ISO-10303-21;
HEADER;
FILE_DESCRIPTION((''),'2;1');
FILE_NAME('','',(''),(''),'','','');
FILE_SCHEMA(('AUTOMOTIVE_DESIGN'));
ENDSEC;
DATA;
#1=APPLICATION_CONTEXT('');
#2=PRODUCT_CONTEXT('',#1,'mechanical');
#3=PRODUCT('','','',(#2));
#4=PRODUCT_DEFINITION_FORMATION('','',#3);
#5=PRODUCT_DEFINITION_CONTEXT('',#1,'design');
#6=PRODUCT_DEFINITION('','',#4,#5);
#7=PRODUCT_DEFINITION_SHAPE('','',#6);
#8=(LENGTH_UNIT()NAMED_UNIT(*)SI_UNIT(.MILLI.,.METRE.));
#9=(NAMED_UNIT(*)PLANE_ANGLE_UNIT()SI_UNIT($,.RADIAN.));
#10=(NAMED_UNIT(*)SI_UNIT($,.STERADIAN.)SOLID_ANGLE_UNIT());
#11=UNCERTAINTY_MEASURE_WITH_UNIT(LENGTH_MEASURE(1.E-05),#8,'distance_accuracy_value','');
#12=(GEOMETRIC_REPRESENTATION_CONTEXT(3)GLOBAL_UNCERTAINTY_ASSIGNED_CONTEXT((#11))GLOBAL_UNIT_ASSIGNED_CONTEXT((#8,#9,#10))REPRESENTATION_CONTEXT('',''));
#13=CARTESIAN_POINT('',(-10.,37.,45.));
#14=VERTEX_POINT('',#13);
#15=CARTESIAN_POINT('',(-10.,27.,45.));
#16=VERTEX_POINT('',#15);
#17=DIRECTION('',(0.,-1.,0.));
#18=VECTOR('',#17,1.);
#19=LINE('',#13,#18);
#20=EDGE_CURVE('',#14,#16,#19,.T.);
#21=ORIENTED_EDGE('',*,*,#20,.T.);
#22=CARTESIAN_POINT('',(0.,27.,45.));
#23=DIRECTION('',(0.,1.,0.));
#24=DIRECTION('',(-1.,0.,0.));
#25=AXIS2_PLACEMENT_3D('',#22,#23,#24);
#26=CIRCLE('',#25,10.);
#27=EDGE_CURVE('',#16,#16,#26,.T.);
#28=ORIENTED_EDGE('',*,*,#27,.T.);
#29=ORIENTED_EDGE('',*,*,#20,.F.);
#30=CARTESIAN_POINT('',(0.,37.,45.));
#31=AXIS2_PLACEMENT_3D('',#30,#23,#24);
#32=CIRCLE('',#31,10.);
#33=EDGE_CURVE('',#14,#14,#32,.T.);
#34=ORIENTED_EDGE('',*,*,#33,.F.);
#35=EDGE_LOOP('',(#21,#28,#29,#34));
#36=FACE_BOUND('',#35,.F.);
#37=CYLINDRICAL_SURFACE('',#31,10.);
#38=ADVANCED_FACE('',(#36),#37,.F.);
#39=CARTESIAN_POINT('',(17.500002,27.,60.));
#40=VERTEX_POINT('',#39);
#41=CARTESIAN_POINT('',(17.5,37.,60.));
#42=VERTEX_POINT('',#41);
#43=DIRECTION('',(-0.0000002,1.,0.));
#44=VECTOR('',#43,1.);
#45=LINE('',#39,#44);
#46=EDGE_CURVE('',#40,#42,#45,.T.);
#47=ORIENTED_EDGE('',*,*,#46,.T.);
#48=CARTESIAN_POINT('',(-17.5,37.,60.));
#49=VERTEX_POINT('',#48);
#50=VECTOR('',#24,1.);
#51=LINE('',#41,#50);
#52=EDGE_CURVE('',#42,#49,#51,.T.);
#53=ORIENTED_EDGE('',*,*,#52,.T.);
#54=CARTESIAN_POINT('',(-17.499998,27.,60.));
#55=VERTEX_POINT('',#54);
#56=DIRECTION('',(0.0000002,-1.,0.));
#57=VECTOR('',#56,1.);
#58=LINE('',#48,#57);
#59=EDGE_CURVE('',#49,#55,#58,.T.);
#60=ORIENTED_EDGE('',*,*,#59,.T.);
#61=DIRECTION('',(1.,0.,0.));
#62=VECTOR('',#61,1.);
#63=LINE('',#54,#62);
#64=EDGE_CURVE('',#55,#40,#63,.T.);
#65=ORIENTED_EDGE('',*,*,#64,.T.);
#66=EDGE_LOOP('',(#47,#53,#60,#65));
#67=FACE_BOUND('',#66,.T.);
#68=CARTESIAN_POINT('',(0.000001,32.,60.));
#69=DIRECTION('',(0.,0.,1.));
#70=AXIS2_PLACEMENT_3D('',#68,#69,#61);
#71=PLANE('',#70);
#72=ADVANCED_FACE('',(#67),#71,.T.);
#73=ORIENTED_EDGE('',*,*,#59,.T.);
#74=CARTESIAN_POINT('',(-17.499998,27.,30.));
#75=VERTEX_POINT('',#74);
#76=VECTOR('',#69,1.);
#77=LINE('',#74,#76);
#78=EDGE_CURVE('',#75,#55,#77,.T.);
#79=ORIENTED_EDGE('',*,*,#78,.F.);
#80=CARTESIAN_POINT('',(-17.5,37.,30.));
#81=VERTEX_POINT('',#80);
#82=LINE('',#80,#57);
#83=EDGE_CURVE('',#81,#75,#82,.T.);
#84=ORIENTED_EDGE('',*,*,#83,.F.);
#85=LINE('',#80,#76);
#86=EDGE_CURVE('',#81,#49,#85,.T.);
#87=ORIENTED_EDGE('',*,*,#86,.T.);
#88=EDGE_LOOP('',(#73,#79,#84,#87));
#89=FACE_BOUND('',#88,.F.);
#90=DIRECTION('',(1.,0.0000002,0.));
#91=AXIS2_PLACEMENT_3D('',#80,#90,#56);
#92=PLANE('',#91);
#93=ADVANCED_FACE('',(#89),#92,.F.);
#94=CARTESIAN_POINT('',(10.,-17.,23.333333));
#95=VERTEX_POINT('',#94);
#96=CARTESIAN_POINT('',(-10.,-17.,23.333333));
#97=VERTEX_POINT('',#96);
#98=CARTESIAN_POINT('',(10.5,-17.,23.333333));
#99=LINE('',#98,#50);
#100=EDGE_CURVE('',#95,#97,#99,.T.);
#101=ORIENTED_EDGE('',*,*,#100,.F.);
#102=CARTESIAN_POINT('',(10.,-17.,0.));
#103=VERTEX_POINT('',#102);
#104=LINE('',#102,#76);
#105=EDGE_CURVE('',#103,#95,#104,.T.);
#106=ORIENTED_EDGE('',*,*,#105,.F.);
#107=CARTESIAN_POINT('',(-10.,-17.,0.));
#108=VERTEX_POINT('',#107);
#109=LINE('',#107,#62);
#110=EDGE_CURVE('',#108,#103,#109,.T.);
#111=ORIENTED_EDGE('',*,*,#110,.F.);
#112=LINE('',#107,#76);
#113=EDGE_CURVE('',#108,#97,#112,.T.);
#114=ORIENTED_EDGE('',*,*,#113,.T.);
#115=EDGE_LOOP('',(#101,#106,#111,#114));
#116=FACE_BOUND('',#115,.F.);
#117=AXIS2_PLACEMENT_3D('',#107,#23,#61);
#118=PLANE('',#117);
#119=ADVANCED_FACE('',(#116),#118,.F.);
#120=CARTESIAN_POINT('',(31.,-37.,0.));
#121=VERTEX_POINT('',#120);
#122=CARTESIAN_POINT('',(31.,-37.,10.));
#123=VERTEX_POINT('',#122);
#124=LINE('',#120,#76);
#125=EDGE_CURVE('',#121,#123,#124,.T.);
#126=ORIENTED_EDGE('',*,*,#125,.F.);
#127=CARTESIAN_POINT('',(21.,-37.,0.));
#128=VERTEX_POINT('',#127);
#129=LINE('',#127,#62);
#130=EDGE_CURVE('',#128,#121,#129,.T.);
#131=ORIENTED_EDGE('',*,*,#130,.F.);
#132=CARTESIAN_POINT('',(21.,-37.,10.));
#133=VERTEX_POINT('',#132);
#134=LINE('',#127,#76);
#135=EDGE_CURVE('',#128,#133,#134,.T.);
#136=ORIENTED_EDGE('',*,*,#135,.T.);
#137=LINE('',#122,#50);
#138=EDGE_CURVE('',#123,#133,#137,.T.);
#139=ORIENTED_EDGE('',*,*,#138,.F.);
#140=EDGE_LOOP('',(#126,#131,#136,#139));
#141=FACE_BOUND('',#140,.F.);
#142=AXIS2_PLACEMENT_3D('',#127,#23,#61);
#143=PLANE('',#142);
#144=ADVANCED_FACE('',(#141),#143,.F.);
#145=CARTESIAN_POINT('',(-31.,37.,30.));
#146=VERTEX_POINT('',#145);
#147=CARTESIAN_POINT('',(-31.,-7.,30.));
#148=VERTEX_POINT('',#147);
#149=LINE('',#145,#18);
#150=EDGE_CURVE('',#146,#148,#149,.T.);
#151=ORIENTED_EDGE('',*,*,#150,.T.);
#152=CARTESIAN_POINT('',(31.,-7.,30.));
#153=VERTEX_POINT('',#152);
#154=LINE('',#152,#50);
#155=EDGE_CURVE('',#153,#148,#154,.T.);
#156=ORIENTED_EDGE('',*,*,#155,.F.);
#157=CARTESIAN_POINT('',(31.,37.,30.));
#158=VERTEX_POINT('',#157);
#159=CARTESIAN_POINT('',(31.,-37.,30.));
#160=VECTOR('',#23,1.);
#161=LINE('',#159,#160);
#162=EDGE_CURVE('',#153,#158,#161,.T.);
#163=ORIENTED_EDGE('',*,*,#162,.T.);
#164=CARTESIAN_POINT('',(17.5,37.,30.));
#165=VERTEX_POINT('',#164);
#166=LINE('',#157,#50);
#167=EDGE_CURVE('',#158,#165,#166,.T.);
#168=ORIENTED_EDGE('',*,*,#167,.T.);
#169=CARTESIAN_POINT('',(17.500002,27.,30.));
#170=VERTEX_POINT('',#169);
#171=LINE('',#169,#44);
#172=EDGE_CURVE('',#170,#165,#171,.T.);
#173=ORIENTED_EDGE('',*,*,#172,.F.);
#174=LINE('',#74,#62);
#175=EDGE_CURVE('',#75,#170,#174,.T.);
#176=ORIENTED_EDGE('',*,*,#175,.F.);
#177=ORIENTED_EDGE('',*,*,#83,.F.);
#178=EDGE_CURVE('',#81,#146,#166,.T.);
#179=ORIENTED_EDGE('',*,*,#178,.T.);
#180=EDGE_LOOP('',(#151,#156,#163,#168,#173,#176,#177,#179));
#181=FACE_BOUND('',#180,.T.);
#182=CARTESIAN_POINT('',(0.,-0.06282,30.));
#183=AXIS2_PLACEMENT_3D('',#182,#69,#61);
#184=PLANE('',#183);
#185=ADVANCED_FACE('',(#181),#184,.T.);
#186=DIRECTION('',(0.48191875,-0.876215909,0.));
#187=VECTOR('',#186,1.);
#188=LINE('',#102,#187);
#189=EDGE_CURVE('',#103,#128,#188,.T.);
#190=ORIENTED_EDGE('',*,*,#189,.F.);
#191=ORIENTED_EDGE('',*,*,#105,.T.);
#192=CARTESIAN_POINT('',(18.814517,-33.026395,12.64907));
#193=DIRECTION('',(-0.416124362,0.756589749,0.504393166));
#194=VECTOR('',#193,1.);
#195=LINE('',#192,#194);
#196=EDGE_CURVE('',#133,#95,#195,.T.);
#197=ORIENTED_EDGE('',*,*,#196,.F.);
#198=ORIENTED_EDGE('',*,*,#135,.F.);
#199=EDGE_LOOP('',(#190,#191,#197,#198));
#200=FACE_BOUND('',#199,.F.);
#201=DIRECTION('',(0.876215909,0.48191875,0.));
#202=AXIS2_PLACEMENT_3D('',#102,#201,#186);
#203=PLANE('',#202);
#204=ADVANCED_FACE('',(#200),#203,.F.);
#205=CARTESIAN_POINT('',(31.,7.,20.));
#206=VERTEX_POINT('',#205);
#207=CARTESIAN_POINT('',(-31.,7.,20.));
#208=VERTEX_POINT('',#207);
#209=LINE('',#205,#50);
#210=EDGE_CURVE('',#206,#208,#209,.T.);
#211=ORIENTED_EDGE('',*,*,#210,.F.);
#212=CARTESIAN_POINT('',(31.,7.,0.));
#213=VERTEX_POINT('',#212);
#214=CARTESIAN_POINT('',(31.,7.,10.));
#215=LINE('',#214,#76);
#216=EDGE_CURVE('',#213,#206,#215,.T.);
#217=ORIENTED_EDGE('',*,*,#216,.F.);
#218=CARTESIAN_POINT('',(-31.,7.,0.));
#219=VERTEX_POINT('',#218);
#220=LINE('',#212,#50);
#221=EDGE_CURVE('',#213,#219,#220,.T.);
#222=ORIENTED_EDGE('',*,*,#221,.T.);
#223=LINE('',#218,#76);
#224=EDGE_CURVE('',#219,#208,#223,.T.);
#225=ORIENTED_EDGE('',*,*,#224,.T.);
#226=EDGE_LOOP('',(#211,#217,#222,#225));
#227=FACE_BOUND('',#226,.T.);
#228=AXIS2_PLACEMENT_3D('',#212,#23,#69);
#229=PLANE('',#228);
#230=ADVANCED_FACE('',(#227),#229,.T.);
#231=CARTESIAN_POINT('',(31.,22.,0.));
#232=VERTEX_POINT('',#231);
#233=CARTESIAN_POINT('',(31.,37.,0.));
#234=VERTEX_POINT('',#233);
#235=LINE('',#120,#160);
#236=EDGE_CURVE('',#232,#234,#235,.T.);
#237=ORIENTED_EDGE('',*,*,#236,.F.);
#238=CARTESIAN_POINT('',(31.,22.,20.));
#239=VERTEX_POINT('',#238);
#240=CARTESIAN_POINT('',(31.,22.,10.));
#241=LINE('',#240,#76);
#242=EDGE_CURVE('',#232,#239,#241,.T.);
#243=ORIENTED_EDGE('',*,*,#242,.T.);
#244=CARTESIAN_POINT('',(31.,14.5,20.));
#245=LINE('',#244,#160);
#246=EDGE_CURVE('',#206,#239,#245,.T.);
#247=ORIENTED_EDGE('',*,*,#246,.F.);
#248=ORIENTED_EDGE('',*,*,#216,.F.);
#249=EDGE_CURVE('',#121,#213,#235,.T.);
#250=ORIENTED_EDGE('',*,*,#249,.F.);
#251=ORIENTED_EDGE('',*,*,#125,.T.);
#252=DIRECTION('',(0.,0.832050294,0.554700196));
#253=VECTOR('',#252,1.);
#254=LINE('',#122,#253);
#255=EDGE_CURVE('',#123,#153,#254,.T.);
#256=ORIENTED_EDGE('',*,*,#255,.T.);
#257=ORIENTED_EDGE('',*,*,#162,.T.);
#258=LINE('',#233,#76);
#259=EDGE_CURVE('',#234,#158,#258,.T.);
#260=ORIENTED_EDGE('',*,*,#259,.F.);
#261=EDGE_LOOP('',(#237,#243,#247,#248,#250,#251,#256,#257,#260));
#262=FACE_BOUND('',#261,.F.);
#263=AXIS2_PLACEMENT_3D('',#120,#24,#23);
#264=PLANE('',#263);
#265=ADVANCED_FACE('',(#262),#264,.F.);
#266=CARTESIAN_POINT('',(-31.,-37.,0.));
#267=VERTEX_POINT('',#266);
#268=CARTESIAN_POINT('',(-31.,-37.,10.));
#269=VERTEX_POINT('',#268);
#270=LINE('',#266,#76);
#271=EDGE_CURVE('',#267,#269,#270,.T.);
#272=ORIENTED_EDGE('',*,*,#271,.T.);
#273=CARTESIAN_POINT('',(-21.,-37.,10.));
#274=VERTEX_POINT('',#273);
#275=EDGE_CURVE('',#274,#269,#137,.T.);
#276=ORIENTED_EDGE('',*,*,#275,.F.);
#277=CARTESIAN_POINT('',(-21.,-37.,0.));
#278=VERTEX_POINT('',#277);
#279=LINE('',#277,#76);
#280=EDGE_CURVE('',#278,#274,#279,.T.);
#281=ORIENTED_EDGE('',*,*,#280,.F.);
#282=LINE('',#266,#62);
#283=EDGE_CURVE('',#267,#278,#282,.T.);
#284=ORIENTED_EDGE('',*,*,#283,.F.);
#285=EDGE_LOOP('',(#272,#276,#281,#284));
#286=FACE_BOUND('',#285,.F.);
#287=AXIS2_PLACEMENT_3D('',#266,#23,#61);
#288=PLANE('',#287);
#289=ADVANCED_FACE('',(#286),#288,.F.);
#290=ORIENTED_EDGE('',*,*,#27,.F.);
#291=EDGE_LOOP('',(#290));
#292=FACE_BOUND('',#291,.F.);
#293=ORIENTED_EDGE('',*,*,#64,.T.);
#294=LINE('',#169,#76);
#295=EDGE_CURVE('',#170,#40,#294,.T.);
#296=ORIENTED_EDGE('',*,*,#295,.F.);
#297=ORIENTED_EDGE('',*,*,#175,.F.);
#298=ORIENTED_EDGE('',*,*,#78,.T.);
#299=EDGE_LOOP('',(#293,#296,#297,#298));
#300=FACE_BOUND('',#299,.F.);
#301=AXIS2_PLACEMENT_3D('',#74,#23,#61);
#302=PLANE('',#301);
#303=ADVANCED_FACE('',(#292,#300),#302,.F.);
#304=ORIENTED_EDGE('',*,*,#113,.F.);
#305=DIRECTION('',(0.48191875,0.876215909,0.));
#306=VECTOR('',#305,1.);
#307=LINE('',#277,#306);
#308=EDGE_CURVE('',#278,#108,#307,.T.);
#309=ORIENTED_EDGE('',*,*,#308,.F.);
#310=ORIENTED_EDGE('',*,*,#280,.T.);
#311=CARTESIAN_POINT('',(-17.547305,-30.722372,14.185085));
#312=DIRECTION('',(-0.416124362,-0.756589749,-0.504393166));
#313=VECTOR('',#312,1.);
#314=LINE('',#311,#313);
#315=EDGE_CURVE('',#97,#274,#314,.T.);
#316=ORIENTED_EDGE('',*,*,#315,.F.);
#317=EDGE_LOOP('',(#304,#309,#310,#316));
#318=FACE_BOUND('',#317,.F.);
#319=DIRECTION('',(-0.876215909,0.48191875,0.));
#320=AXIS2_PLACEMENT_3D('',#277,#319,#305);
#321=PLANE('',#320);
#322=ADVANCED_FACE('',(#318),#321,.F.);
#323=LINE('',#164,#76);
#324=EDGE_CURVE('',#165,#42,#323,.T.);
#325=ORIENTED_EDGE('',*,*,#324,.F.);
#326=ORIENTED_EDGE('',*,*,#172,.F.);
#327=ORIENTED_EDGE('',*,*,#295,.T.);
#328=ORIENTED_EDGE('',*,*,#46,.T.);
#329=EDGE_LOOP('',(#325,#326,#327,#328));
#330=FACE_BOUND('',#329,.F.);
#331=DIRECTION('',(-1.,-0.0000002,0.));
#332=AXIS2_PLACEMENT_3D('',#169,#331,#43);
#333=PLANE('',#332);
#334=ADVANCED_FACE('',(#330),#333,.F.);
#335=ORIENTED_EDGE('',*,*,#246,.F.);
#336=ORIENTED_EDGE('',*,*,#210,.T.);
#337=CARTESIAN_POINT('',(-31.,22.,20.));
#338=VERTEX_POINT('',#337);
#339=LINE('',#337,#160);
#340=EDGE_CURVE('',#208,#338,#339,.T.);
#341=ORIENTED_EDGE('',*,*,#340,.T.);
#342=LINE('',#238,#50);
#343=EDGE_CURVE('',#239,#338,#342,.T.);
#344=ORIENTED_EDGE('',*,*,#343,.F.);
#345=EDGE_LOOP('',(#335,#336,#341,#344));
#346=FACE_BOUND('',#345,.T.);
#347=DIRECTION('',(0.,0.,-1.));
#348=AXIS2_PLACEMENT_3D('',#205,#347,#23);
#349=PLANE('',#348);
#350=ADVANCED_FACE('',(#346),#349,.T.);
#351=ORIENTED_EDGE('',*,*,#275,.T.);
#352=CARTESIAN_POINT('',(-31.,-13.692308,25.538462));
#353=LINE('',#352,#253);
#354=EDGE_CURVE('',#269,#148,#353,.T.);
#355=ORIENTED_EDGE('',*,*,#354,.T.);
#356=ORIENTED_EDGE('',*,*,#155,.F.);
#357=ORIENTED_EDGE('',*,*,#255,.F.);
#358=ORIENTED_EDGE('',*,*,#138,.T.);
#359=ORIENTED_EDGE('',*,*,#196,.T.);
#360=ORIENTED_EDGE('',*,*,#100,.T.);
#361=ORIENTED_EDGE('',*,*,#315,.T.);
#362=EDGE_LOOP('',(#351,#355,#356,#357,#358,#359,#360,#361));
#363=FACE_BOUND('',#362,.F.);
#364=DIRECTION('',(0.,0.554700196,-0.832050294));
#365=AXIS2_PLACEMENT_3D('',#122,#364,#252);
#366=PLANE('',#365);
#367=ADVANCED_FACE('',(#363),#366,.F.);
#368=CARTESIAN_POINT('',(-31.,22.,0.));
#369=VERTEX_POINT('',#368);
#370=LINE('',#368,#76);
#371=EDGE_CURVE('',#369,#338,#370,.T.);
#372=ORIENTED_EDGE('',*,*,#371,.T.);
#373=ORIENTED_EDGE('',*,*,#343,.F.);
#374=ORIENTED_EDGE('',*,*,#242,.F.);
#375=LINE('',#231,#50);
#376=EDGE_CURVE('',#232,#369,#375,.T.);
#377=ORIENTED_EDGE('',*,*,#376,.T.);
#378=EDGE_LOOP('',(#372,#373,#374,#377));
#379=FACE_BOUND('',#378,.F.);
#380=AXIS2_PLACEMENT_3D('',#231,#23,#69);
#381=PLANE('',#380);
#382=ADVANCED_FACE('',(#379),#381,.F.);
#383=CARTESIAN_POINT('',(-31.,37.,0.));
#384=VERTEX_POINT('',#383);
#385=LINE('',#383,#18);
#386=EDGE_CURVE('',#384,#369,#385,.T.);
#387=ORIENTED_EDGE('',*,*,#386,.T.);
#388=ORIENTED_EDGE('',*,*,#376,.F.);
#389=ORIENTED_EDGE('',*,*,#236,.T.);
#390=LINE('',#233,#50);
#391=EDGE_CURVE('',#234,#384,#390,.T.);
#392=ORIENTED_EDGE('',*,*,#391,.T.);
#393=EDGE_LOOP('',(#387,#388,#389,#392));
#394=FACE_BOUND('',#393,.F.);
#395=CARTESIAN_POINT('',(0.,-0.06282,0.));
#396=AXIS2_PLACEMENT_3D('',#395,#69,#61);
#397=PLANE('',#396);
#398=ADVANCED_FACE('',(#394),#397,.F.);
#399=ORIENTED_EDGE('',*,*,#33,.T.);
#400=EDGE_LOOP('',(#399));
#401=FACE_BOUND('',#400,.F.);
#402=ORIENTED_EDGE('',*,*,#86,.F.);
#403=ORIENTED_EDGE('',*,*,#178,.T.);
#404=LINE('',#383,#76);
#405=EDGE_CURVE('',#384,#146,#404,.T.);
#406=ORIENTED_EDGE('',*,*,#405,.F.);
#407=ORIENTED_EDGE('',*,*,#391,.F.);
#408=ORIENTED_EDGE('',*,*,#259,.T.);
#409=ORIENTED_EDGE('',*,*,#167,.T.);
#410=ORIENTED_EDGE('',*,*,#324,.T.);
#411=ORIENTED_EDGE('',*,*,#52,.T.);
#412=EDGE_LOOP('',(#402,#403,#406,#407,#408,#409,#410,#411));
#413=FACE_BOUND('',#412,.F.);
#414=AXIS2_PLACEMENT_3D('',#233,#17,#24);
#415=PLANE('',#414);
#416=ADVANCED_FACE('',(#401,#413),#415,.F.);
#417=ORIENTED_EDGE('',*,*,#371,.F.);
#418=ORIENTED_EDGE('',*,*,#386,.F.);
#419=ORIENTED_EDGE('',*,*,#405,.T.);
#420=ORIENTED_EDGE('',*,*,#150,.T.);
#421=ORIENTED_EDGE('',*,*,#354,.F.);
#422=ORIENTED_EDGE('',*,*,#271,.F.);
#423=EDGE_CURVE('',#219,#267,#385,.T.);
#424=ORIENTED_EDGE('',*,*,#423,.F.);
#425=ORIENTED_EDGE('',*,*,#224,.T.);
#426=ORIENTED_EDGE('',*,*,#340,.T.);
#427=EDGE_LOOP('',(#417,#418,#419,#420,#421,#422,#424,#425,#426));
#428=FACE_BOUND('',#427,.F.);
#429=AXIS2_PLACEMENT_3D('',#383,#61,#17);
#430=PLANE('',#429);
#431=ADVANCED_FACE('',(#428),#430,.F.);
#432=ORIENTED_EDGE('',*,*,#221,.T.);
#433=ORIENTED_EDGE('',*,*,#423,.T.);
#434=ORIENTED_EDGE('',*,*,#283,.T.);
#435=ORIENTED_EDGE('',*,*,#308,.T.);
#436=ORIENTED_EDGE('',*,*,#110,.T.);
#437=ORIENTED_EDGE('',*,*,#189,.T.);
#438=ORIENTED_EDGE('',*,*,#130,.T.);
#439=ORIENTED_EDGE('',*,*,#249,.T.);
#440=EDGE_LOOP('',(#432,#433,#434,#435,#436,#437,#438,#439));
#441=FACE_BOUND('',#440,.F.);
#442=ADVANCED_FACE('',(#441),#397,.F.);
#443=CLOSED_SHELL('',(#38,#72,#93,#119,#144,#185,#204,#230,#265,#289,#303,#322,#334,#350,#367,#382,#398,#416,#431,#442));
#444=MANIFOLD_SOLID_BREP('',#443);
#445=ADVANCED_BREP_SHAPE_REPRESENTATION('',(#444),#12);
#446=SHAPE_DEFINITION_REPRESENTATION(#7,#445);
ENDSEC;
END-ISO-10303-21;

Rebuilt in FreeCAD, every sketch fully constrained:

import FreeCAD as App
import Part
import Sketcher
Q = App.Units.Quantity


def add_polygon(sketch, points):
    """Adds a closed chain of lines whose ends are joined by coincident constraints."""
    first, n = sketch.GeometryCount, len(points)
    for a, b in zip(points, points[1:] + points[:1]):
        sketch.addGeometry(Part.LineSegment(App.Vector(*a, 0), App.Vector(*b, 0)), False)
    for i in range(n):
        sketch.addConstraint(Sketcher.Constraint("Coincident", first + i, 2, first + (i + 1) % n, 1))

doc = App.newDocument("Part")
body = doc.addObject("PartDesign::Body", "Body")

# Sketch on XY plane
sketch1 = body.newObject("Sketcher::SketchObject", "Sketch")
sketch1.AttachmentSupport = (doc.getObject("XY_Plane"), [""])
sketch1.MapMode = "FlatFace"
add_polygon(sketch1, [(21, -37), (31, -37), (31, 37), (-31, 37), (-31, -37), (-21, -37), (-10, -17), (10, -17)])  # lines 0-7
sketch1.addConstraint(Sketcher.Constraint("Horizontal", 0))
sketch1.addConstraint(Sketcher.Constraint("Vertical", 1))
sketch1.addConstraint(Sketcher.Constraint("Horizontal", 2))
sketch1.addConstraint(Sketcher.Constraint("Vertical", 3))
sketch1.addConstraint(Sketcher.Constraint("Horizontal", 4))
sketch1.addConstraint(Sketcher.Constraint("Horizontal", 6))
sketch1.addConstraint(Sketcher.Constraint("Symmetric", 0, 2, 2, 2, -1, 1))
sketch1.addConstraint(Sketcher.Constraint("Symmetric", 4, 2, 7, 2, -2))
sketch1.addConstraint(Sketcher.Constraint("Equal", 5, 7))
sketch1.addConstraint(Sketcher.Constraint("DistanceX", 0, 1, 0, 2, Q("10 mm")))
sketch1.addConstraint(Sketcher.Constraint("DistanceX", 2, 2, 2, 1, Q("62 mm")))
sketch1.addConstraint(Sketcher.Constraint("DistanceX", 6, 1, 6, 2, Q("20 mm")))
sketch1.addConstraint(Sketcher.Constraint("DistanceY", 1, 1, 1, 2, Q("74 mm")))
sketch1.addConstraint(Sketcher.Constraint("DistanceY", 5, 2, -1, 1, Q("17 mm")))
pad1 = body.newObject("PartDesign::Pad", "Pad")
pad1.Profile = sketch1
pad1.Length = 30

# Sketch on YZ plane
sketch2 = body.newObject("Sketcher::SketchObject", "Sketch001")
sketch2.AttachmentSupport = (doc.getObject("YZ_Plane"), [""])
sketch2.MapMode = "FlatFace"
sketch2.AttachmentOffset = App.Placement(App.Vector(0, 0, 31), App.Rotation())
add_polygon(sketch2, [(7, 20), (7, 0), (22, 0), (22, 20)])  # lines 0-3
add_polygon(sketch2, [(-37, 10), (-7, 30), (-37, 30)])  # lines 4-6
sketch2.addConstraint(Sketcher.Constraint("Vertical", 0))
sketch2.addConstraint(Sketcher.Constraint("Horizontal", 1))
sketch2.addConstraint(Sketcher.Constraint("Vertical", 2))
sketch2.addConstraint(Sketcher.Constraint("Horizontal", 3))
sketch2.addConstraint(Sketcher.Constraint("Horizontal", 5))
sketch2.addConstraint(Sketcher.Constraint("Vertical", 6))
sketch2.addConstraint(Sketcher.Constraint("PointOnObject", 0, 2, -1))
sketch2.addConstraint(Sketcher.Constraint("Equal", 2, 6))
sketch2.addConstraint(Sketcher.Constraint("DistanceX", 1, 1, 1, 2, Q("15 mm")))
sketch2.addConstraint(Sketcher.Constraint("DistanceX", 5, 2, 5, 1, Q("30 mm")))
sketch2.addConstraint(Sketcher.Constraint("DistanceY", 0, 2, 0, 1, Q("20 mm")))
sketch2.addConstraint(Sketcher.Constraint("DistanceX", -1, 1, 0, 2, Q("7 mm")))
sketch2.addConstraint(Sketcher.Constraint("DistanceX", 4, 2, -1, 1, Q("7 mm")))
sketch2.addConstraint(Sketcher.Constraint("DistanceY", -1, 1, 4, 2, Q("30 mm")))
pocket1 = body.newObject("PartDesign::Pocket", "Pocket")
pocket1.Profile = sketch2
pocket1.Length = 84.5

# Sketch on XY plane
sketch3 = body.newObject("Sketcher::SketchObject", "Sketch002")
sketch3.AttachmentSupport = (doc.getObject("XY_Plane"), [""])
sketch3.MapMode = "FlatFace"
sketch3.AttachmentOffset = App.Placement(App.Vector(0, 0, 30), App.Rotation())
add_polygon(sketch3, [(-17, 27), (18, 27), (18, 37), (-18, 37)])  # lines 0-3
sketch3.addConstraint(Sketcher.Constraint("Horizontal", 0))
sketch3.addConstraint(Sketcher.Constraint("Vertical", 1))
sketch3.addConstraint(Sketcher.Constraint("Horizontal", 2))
sketch3.addConstraint(Sketcher.Constraint("Vertical", 3))
sketch3.addConstraint(Sketcher.Constraint("DistanceX", 0, 1, 0, 2, Q("35 mm")))
sketch3.addConstraint(Sketcher.Constraint("DistanceY", 1, 1, 1, 2, Q("10 mm")))
sketch3.addConstraint(Sketcher.Constraint("DistanceY", -1, 1, 0, 2, Q("27 mm")))
sketch3.addConstraint(Sketcher.Constraint("DistanceX", -1, 1, 0, 2, Q("17.500002 mm")))
pad2 = body.newObject("PartDesign::Pad", "Pad001")
pad2.Profile = sketch3
pad2.Length = 30

# Sketch on XZ plane
sketch4 = body.newObject("Sketcher::SketchObject", "Sketch003")
sketch4.AttachmentSupport = (doc.getObject("XZ_Plane"), [""])
sketch4.MapMode = "FlatFace"
sketch4.AttachmentOffset = App.Placement(App.Vector(0, 0, -37), App.Rotation())
sketch4.addGeometry(Part.Circle(App.Vector(0, 45, 0), App.Vector(0, 0, 1), 10), False)
sketch4.addConstraint(Sketcher.Constraint("PointOnObject", 0, 3, -2))
sketch4.addConstraint(Sketcher.Constraint("Diameter", 0, Q("20 mm")))
sketch4.addConstraint(Sketcher.Constraint("DistanceY", -1, 1, 0, 3, Q("45 mm")))
pocket2 = body.newObject("PartDesign::Pocket", "Pocket001")
pocket2.Profile = sketch4
pocket2.Length = 25
pocket2.Reversed = True

doc.recompute()
